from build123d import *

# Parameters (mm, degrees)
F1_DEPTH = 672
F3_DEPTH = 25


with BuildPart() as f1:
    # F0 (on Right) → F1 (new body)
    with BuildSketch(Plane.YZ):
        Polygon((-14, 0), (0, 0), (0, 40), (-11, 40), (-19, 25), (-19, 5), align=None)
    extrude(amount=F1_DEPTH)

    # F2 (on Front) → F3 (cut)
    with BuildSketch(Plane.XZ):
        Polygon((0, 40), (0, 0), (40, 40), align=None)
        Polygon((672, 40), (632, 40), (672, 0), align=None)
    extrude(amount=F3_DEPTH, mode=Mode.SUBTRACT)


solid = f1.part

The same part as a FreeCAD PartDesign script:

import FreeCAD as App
import Part
import Sketcher
from FreeCAD import Vector
Q = App.Units.Quantity

doc = App.newDocument("Part")
body = doc.addObject("PartDesign::Body", "Body")

# Sketch on YZ plane
sketch1 = body.newObject("Sketcher::SketchObject", "Sketch")
sketch1.AttachmentSupport = (doc.getObject("YZ_Plane"), [""])
sketch1.MapMode = "FlatFace"
sketch1.addGeometry(Part.LineSegment(Vector(-14, 0, 0), Vector(0, 0, 0)), False)
sketch1.addGeometry(Part.LineSegment(Vector(0, 0, 0), Vector(0, 40, 0)), False)
sketch1.addGeometry(Part.LineSegment(Vector(0, 40, 0), Vector(-11, 40, 0)), False)
sketch1.addGeometry(Part.LineSegment(Vector(-11, 40, 0), Vector(-19, 25, 0)), False)
sketch1.addGeometry(Part.LineSegment(Vector(-19, 25, 0), Vector(-19, 5, 0)), False)
sketch1.addGeometry(Part.LineSegment(Vector(-19, 5, 0), Vector(-14, 0, 0)), False)
sketch1.addConstraint(Sketcher.Constraint("Coincident", 0, 2, 1, 1))
sketch1.addConstraint(Sketcher.Constraint("Coincident", 1, 2, 2, 1))
sketch1.addConstraint(Sketcher.Constraint("Coincident", 2, 2, 3, 1))
sketch1.addConstraint(Sketcher.Constraint("Coincident", 3, 2, 4, 1))
sketch1.addConstraint(Sketcher.Constraint("Coincident", 4, 2, 5, 1))
sketch1.addConstraint(Sketcher.Constraint("Coincident", 5, 2, 0, 1))
sketch1.addConstraint(Sketcher.Constraint("Horizontal", 0))
sketch1.addConstraint(Sketcher.Constraint("Vertical", 1))
sketch1.addConstraint(Sketcher.Constraint("Horizontal", 2))
sketch1.addConstraint(Sketcher.Constraint("Vertical", 4))
sketch1.addConstraint(Sketcher.Constraint("Coincident", 0, 2, -1, 1))
sketch1.addConstraint(Sketcher.Constraint("DistanceX", 0, 1, 0, 2, 14.0))
sketch1.addConstraint(Sketcher.Constraint("DistanceX", 2, 2, 2, 1, 11.0))
sketch1.addConstraint(Sketcher.Constraint("DistanceY", 1, 1, 1, 2, 40.0))
sketch1.addConstraint(Sketcher.Constraint("DistanceY", 4, 2, 4, 1, 20.0))
sketch1.addConstraint(Sketcher.Constraint("Angle", 5, Q("-45 deg")))
sketch1.addConstraint(Sketcher.Constraint("Distance", 3, 17.0))
pad1 = body.newObject("PartDesign::Pad", "Pad")
pad1.Profile = sketch1
pad1.Length = 672

# Sketch on XZ plane
sketch2 = body.newObject("Sketcher::SketchObject", "Sketch001")
sketch2.AttachmentSupport = (doc.getObject("XZ_Plane"), [""])
sketch2.MapMode = "FlatFace"
sketch2.addGeometry(Part.LineSegment(Vector(0, 40, 0), Vector(0, 0, 0)), False)
sketch2.addGeometry(Part.LineSegment(Vector(0, 0, 0), Vector(40, 40, 0)), False)
sketch2.addGeometry(Part.LineSegment(Vector(40, 40, 0), Vector(0, 40, 0)), False)
sketch2.addGeometry(Part.LineSegment(Vector(672, 40, 0), Vector(632, 40, 0)), False)
sketch2.addGeometry(Part.LineSegment(Vector(632, 40, 0), Vector(672, 0, 0)), False)
sketch2.addGeometry(Part.LineSegment(Vector(672, 0, 0), Vector(672, 40, 0)), False)
sketch2.addConstraint(Sketcher.Constraint("Coincident", 0, 2, 1, 1))
sketch2.addConstraint(Sketcher.Constraint("Coincident", 1, 2, 2, 1))
sketch2.addConstraint(Sketcher.Constraint("Coincident", 2, 2, 0, 1))
sketch2.addConstraint(Sketcher.Constraint("Coincident", 3, 2, 4, 1))
sketch2.addConstraint(Sketcher.Constraint("Coincident", 4, 2, 5, 1))
sketch2.addConstraint(Sketcher.Constraint("Coincident", 5, 2, 3, 1))
sketch2.addConstraint(Sketcher.Constraint("Vertical", 0))
sketch2.addConstraint(Sketcher.Constraint("Horizontal", 2))
sketch2.addConstraint(Sketcher.Constraint("Horizontal", 3))
sketch2.addConstraint(Sketcher.Constraint("Vertical", 5))
sketch2.addConstraint(Sketcher.Constraint("Coincident", 0, 2, -1, 1))
sketch2.addConstraint(Sketcher.Constraint("PointOnObject", 4, 2, -1))
sketch2.addConstraint(Sketcher.Constraint("Perpendicular", 1, 4))
sketch2.addConstraint(Sketcher.Constraint("Horizontal", 2, 2, 3, 2))
sketch2.addConstraint(Sketcher.Constraint("Equal", 2, 3))
sketch2.addConstraint(Sketcher.Constraint("DistanceX", 2, 2, 2, 1, 40.0))
sketch2.addConstraint(Sketcher.Constraint("DistanceX", -1, 1, 3, 2, 632.0))
pocket1 = body.newObject("PartDesign::Pocket", "Pocket")
pocket1.Profile = sketch2
pocket1.Length = 25
pocket1.Reversed = True

doc.recompute()
